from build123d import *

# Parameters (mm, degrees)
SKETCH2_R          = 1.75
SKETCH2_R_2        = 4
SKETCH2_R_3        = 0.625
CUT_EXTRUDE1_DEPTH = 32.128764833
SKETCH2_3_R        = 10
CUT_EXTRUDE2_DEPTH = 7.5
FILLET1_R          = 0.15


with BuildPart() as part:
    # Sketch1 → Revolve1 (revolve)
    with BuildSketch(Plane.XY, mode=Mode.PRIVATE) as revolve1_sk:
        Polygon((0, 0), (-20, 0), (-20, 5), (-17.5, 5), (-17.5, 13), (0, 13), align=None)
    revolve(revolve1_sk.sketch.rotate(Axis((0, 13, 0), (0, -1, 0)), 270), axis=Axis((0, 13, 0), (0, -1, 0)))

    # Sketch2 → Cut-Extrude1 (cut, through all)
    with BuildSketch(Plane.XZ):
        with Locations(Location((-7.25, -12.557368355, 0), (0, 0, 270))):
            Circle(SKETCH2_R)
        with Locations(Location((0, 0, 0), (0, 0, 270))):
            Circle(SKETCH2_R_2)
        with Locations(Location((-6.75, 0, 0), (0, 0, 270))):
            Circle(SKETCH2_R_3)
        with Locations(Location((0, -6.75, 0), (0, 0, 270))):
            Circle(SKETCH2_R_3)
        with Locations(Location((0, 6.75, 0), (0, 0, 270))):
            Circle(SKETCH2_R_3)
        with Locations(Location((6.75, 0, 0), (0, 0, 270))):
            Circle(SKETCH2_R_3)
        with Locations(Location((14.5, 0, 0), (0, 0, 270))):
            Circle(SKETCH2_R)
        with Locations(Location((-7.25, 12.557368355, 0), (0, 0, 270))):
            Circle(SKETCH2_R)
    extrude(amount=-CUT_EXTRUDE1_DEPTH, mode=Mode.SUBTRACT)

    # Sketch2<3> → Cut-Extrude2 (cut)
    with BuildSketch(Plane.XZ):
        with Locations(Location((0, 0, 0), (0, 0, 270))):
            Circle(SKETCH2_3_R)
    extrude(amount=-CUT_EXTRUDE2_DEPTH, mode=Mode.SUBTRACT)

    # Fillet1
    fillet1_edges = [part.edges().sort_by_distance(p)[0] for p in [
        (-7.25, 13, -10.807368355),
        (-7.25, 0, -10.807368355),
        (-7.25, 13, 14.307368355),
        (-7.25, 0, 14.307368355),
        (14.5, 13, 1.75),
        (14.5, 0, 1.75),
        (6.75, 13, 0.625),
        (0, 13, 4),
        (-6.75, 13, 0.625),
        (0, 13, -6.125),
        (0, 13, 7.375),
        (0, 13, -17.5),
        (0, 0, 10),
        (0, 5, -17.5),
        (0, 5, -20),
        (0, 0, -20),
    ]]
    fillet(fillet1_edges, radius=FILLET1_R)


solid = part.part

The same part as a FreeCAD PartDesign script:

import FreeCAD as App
import Part
import Sketcher


def edges_at(feature, points):
    """Names of the edges that pass closest to the given points."""
    edges = feature.Shape.Edges
    near = lambda p: min(range(len(edges)), key=lambda i: edges[i].distToShape(Part.Vertex(*p))[0])
    return sorted({f"Edge{near(p) + 1}" for p in points})

doc = App.newDocument("Part")
body = doc.addObject("PartDesign::Body", "Body")

# Sketch on XY plane
sketch1 = body.newObject("Sketcher::SketchObject", "Sketch")
sketch1.AttachmentSupport = (doc.getObject("XY_Plane"), [""])
sketch1.MapMode = "FlatFace"
sketch1.addGeometry(Part.LineSegment(App.Vector(-20, 0, 0), App.Vector(0, 0, 0)), False)
sketch1.addGeometry(Part.LineSegment(App.Vector(0, 0, 0), App.Vector(0, 13, 0)), False)
sketch1.addGeometry(Part.LineSegment(App.Vector(0, 13, 0), App.Vector(-17.5, 13, 0)), False)
sketch1.addGeometry(Part.LineSegment(App.Vector(-17.5, 13, 0), App.Vector(-17.5, 5, 0)), False)
sketch1.addGeometry(Part.LineSegment(App.Vector(-17.5, 5, 0), App.Vector(-20, 5, 0)), False)
sketch1.addGeometry(Part.LineSegment(App.Vector(-20, 5, 0), App.Vector(-20, 0, 0)), False)
sketch1.addConstraint(Sketcher.Constraint("Coincident", 0, 2, 1, 1))
sketch1.addConstraint(Sketcher.Constraint("Coincident", 1, 2, 2, 1))
sketch1.addConstraint(Sketcher.Constraint("Coincident", 2, 2, 3, 1))
sketch1.addConstraint(Sketcher.Constraint("Coincident", 3, 2, 4, 1))
sketch1.addConstraint(Sketcher.Constraint("Coincident", 4, 2, 5, 1))
sketch1.addConstraint(Sketcher.Constraint("Coincident", 5, 2, 0, 1))
sketch1.addConstraint(Sketcher.Constraint("Horizontal", 0))
sketch1.addConstraint(Sketcher.Constraint("Vertical", 1))
sketch1.addConstraint(Sketcher.Constraint("Horizontal", 2))
sketch1.addConstraint(Sketcher.Constraint("Vertical", 3))
sketch1.addConstraint(Sketcher.Constraint("Horizontal", 4))
sketch1.addConstraint(Sketcher.Constraint("Vertical", 5))
sketch1.addConstraint(Sketcher.Constraint("Coincident", 0, 2, -1, 1))
sketch1.addConstraint(Sketcher.Constraint("DistanceX", 0, 1, 0, 2, 20.0))
sketch1.addConstraint(Sketcher.Constraint("DistanceY", 1, 1, 1, 2, 13.0))
sketch1.addConstraint(Sketcher.Constraint("DistanceY", 3, 2, 3, 1, 8.0))
sketch1.addConstraint(Sketcher.Constraint("DistanceX", 2, 2, 2, 1, 17.5))
revolution = body.newObject("PartDesign::Revolution", "Revolution")
revolution.Profile = sketch1
revolution.ReferenceAxis = (sketch1, ["V_Axis"])
revolution.Angle = 360

# Sketch on XZ plane
sketch2 = body.newObject("Sketcher::SketchObject", "Sketch001")
sketch2.AttachmentSupport = (doc.getObject("XZ_Plane"), [""])
sketch2.MapMode = "FlatFace"
sketch2.addGeometry(Part.Circle(App.Vector(-7.2, -12.6, 0), App.Vector(0, 0, 1), 1.8), False)
sketch2.addGeometry(Part.Circle(App.Vector(0, 0, 0), App.Vector(0, 0, 1), 4), False)
sketch2.addGeometry(Part.Circle(App.Vector(-6.8, 0, 0), App.Vector(0, 0, 1), 0.6), False)
sketch2.addGeometry(Part.Circle(App.Vector(0, -6.8, 0), App.Vector(0, 0, 1), 0.6), False)
sketch2.addGeometry(Part.Circle(App.Vector(0, 6.8, 0), App.Vector(0, 0, 1), 0.6), False)
sketch2.addGeometry(Part.Circle(App.Vector(6.8, 0, 0), App.Vector(0, 0, 1), 0.6), False)
sketch2.addGeometry(Part.Circle(App.Vector(14.5, 0, 0), App.Vector(0, 0, 1), 1.8), False)
sketch2.addGeometry(Part.Circle(App.Vector(-7.2, 12.6, 0), App.Vector(0, 0, 1), 1.8), False)
sketch2.addConstraint(Sketcher.Constraint("Coincident", 1, 3, -1, 1))
sketch2.addConstraint(Sketcher.Constraint("Equal", 2, 3))
sketch2.addConstraint(Sketcher.Constraint("Equal", 3, 4))
sketch2.addConstraint(Sketcher.Constraint("Equal", 4, 5))
sketch2.addConstraint(Sketcher.Constraint("Equal", 0, 6))
sketch2.addConstraint(Sketcher.Constraint("Equal", 6, 7))
sketch2.addConstraint(Sketcher.Constraint("Symmetric", 3, 3, 4, 3, -1, 1))
sketch2.addConstraint(Sketcher.Constraint("Symmetric", 2, 3, 5, 3, -1, 1))
sketch2.addConstraint(Sketcher.Constraint("Symmetric", 0, 3, 7, 3, -1))
sketch2.addConstraint(Sketcher.Constraint("PointOnObject", 2, 3, -1))
sketch2.addConstraint(Sketcher.Constraint("PointOnObject", 3, 3, -2))
sketch2.addConstraint(Sketcher.Constraint("PointOnObject", 6, 3, -1))
sketch2.addConstraint(Sketcher.Constraint("Diameter", 1, 8.0))
sketch2.addConstraint(Sketcher.Constraint("Diameter", 0, 3.5))
sketch2.addConstraint(Sketcher.Constraint("Diameter", 2, 1.25))
sketch2.addConstraint(Sketcher.Constraint("DistanceX", 0, 3, 5, 3, 14.0))
sketch2.addConstraint(Sketcher.Constraint("DistanceX", -1, 1, 6, 3, 14.5))
sketch2.addConstraint(Sketcher.Constraint("DistanceX", 0, 3, 2, 3, 0.5))
sketch2.addConstraint(Sketcher.Constraint("DistanceY", 3, 3, 4, 3, 13.5))
sketch2.addConstraint(Sketcher.Constraint("DistanceY", 0, 3, -1, 1, 12.557368))
pocket1 = body.newObject("PartDesign::Pocket", "Pocket")
pocket1.Profile = sketch2
pocket1.Type = "ThroughAll"

# Sketch on XZ plane
sketch3 = body.newObject("Sketcher::SketchObject", "Sketch002")
sketch3.AttachmentSupport = (doc.getObject("XZ_Plane"), [""])
sketch3.MapMode = "FlatFace"
sketch3.addGeometry(Part.Circle(App.Vector(0, 0, 0), App.Vector(0, 0, 1), 10), False)
sketch3.addConstraint(Sketcher.Constraint("Coincident", 0, 3, -1, 1))
sketch3.addConstraint(Sketcher.Constraint("Diameter", 0, 20.0))
pocket2 = body.newObject("PartDesign::Pocket", "Pocket001")
pocket2.Profile = sketch3
pocket2.Length = 7.5
doc.recompute()

fillet = body.newObject("PartDesign::Fillet", "Fillet")
fillet.Base = (pocket2, edges_at(pocket2, [
    (-7.25, 13, -10.807),
    (-7.25, 0, -10.807),
    (-7.25, 13, 14.307),
    (-7.25, 0, 14.307),
    (14.5, 13, 1.75),
    (14.5, 0, 1.75),
    (6.75, 13, 0.625),
    (0, 13, 4),
    (-6.75, 13, 0.625),
    (0, 13, -6.125),
    (0, 13, 7.375),
    (0, 13, -17.5),
    (0, 0, 10),
    (0, 5, -17.5),
    (0, 5, -20),
    (0, 0, -20),
]))
fillet.Radius = 0.15

doc.recompute()
